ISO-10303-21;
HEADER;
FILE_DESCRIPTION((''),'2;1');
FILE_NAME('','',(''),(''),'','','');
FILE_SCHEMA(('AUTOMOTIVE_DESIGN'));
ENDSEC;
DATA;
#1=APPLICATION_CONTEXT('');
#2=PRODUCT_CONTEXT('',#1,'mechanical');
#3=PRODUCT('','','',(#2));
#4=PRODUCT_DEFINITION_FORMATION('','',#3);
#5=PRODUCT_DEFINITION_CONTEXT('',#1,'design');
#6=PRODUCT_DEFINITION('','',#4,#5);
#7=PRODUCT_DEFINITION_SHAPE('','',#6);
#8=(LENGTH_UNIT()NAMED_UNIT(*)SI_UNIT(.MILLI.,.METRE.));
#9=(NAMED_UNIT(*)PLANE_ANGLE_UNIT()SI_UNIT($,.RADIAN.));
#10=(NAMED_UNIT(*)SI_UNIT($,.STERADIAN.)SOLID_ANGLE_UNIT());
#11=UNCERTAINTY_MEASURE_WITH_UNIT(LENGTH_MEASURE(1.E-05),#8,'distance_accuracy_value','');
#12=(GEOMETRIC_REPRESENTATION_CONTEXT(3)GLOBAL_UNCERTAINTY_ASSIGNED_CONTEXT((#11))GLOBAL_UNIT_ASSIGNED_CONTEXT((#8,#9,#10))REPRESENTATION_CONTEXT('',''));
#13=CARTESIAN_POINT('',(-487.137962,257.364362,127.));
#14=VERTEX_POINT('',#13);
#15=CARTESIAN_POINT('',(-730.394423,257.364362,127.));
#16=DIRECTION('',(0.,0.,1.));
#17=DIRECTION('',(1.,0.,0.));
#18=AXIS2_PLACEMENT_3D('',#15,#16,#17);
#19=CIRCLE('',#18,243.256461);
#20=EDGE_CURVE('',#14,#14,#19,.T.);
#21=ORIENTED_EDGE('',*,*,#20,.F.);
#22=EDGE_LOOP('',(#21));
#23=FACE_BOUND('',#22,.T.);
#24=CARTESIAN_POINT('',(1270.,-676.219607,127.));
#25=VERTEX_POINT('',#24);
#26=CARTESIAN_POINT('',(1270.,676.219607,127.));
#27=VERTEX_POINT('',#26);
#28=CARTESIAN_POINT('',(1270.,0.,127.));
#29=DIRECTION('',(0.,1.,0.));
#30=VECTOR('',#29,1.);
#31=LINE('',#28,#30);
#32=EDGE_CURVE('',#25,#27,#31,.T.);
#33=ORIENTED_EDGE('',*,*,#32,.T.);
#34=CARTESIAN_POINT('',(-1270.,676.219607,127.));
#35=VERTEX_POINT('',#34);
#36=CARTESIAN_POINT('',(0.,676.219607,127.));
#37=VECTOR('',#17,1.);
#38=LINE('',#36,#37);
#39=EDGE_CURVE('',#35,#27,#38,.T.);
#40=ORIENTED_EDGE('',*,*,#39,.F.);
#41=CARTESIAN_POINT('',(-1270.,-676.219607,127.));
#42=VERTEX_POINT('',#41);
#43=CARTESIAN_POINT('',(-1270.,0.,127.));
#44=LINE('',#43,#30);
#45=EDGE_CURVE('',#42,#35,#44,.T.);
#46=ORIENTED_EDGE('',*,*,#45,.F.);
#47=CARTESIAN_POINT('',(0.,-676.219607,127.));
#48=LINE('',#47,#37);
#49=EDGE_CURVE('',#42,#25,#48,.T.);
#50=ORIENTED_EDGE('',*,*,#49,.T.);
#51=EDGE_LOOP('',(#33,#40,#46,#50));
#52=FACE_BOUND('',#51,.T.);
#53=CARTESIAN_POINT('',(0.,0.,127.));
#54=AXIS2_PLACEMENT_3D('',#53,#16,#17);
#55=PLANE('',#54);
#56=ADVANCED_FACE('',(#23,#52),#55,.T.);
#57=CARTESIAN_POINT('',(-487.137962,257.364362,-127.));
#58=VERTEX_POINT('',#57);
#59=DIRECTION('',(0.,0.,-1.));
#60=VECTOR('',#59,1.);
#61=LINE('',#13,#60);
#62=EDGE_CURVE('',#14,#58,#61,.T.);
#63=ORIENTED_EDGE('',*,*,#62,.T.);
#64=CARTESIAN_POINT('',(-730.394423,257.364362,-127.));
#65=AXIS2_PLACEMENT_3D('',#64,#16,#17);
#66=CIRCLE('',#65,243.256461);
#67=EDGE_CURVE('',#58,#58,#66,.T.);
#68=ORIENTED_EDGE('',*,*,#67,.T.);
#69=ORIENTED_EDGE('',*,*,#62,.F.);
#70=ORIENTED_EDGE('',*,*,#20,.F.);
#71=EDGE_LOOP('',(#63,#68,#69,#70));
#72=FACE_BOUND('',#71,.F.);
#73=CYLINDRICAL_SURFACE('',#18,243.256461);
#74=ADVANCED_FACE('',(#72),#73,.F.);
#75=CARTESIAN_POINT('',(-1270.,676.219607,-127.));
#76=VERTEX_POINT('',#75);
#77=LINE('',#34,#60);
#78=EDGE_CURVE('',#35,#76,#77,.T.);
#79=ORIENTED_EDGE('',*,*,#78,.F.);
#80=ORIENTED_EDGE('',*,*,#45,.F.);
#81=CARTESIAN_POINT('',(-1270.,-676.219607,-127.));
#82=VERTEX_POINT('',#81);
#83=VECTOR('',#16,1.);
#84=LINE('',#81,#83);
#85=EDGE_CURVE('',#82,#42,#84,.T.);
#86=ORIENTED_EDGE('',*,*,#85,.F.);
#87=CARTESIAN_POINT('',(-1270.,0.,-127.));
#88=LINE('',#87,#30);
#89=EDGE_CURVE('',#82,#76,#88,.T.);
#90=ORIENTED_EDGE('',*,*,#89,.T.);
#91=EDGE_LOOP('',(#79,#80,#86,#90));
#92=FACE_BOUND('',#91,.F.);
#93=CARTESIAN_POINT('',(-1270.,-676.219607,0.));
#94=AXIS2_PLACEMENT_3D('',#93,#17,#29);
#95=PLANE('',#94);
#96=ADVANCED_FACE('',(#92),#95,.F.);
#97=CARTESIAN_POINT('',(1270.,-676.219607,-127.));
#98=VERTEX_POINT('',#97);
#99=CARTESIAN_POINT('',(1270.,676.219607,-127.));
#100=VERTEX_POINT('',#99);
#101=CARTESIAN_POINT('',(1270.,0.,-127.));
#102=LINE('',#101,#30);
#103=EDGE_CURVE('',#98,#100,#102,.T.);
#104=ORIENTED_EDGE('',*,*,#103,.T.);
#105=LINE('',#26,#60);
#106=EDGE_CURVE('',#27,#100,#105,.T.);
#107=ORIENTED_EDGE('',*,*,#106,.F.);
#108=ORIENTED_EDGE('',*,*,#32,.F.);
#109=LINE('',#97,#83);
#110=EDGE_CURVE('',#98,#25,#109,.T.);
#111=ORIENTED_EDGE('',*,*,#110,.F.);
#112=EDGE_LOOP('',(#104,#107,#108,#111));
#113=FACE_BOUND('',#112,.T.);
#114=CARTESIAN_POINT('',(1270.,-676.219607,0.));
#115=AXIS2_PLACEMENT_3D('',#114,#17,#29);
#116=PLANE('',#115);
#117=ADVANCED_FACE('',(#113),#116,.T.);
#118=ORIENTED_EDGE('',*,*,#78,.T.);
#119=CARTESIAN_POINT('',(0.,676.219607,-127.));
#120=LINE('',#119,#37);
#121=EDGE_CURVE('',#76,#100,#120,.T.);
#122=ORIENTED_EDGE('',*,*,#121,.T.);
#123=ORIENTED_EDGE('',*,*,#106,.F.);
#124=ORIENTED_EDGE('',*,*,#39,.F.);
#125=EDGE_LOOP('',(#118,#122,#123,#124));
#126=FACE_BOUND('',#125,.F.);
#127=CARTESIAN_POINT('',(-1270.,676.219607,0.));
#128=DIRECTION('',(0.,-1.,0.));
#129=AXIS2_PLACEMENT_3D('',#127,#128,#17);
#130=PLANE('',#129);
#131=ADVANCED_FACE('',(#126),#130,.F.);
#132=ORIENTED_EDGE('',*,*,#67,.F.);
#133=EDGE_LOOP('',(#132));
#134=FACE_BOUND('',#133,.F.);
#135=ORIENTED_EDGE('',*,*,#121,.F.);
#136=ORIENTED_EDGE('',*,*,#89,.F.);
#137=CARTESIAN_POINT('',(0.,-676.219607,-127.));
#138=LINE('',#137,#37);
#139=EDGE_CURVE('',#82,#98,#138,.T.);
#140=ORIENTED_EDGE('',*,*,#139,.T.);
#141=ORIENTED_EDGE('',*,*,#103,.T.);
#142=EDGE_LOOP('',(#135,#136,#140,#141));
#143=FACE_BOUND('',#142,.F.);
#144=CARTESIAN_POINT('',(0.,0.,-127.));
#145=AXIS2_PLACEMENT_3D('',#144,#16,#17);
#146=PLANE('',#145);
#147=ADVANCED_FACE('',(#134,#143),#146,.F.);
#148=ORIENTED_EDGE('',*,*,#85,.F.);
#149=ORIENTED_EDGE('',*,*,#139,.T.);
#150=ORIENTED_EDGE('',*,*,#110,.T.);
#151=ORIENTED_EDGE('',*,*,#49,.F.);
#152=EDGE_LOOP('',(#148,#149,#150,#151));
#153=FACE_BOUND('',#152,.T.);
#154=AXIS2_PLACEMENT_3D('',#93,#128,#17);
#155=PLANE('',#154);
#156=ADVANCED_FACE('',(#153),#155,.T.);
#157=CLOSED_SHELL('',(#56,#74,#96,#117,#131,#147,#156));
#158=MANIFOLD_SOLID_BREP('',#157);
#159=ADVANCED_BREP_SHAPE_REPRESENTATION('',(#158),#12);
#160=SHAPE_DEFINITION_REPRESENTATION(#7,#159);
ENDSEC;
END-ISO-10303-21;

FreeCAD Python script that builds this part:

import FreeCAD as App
import Part
import Sketcher

V = App.Vector
Q = App.Units.Quantity


def add_polygon(sketch, points):
    """Adds a closed chain of lines whose ends are joined by coincident constraints."""
    first, n = sketch.GeometryCount, len(points)
    for a, b in zip(points, points[1:] + points[:1]):
        sketch.addGeometry(Part.LineSegment(App.Vector(*a, 0), App.Vector(*b, 0)), False)
    for i in range(n):
        sketch.addConstraint(Sketcher.Constraint("Coincident", first + i, 2, first + (i + 1) % n, 1))

doc = App.newDocument("Part")
body = doc.addObject("PartDesign::Body", "Body")

# Sketch on XY plane
sketch1 = body.newObject("Sketcher::SketchObject", "Sketch")
sketch1.AttachmentSupport = (doc.getObject("XY_Plane"), [""])
sketch1.MapMode = "FlatFace"
add_polygon(sketch1, [(-1270, 676), (-1270, -676), (1270, -676), (1270, 676)])  # lines 0-3
sketch1.addConstraint(Sketcher.Constraint("Vertical", 0))
sketch1.addConstraint(Sketcher.Constraint("Horizontal", 1))
sketch1.addConstraint(Sketcher.Constraint("Vertical", 2))
sketch1.addConstraint(Sketcher.Constraint("Horizontal", 3))
sketch1.addConstraint(Sketcher.Constraint("Symmetric", 0, 2, 2, 2, -1, 1))
sketch1.addConstraint(Sketcher.Constraint("DistanceX", 1, 1, 1, 2, Q("100 in")))
sketch1.addConstraint(Sketcher.Constraint("DistanceY", 0, 2, 0, 1, 1352.439214))
pad1 = body.newObject("PartDesign::Pad", "Pad")
pad1.Profile = sketch1
pad1.Length = Q("10 in")
pad1.Midplane = True

# Sketch on XY plane
sketch2 = body.newObject("Sketcher::SketchObject", "Sketch001")
sketch2.AttachmentSupport = (doc.getObject("XY_Plane"), [""])
sketch2.MapMode = "FlatFace"
sketch2.AttachmentOffset = App.Placement(V(0, 0, 5 * 25.4), App.Rotation())
sketch2.addGeometry(Part.Circle(V(-730, 257, 0), V(0, 0, 1), 243), False)
sketch2.addConstraint(Sketcher.Constraint("Diameter", 0, 486.512922))
sketch2.addConstraint(Sketcher.Constraint("DistanceX", 0, 3, -1, 1, 730.394423))
sketch2.addConstraint(Sketcher.Constraint("DistanceY", -1, 1, 0, 3, 257.364362))
pocket1 = body.newObject("PartDesign::Pocket", "Pocket")
pocket1.Profile = sketch2
pocket1.Type = "ThroughAll"

doc.recompute()
